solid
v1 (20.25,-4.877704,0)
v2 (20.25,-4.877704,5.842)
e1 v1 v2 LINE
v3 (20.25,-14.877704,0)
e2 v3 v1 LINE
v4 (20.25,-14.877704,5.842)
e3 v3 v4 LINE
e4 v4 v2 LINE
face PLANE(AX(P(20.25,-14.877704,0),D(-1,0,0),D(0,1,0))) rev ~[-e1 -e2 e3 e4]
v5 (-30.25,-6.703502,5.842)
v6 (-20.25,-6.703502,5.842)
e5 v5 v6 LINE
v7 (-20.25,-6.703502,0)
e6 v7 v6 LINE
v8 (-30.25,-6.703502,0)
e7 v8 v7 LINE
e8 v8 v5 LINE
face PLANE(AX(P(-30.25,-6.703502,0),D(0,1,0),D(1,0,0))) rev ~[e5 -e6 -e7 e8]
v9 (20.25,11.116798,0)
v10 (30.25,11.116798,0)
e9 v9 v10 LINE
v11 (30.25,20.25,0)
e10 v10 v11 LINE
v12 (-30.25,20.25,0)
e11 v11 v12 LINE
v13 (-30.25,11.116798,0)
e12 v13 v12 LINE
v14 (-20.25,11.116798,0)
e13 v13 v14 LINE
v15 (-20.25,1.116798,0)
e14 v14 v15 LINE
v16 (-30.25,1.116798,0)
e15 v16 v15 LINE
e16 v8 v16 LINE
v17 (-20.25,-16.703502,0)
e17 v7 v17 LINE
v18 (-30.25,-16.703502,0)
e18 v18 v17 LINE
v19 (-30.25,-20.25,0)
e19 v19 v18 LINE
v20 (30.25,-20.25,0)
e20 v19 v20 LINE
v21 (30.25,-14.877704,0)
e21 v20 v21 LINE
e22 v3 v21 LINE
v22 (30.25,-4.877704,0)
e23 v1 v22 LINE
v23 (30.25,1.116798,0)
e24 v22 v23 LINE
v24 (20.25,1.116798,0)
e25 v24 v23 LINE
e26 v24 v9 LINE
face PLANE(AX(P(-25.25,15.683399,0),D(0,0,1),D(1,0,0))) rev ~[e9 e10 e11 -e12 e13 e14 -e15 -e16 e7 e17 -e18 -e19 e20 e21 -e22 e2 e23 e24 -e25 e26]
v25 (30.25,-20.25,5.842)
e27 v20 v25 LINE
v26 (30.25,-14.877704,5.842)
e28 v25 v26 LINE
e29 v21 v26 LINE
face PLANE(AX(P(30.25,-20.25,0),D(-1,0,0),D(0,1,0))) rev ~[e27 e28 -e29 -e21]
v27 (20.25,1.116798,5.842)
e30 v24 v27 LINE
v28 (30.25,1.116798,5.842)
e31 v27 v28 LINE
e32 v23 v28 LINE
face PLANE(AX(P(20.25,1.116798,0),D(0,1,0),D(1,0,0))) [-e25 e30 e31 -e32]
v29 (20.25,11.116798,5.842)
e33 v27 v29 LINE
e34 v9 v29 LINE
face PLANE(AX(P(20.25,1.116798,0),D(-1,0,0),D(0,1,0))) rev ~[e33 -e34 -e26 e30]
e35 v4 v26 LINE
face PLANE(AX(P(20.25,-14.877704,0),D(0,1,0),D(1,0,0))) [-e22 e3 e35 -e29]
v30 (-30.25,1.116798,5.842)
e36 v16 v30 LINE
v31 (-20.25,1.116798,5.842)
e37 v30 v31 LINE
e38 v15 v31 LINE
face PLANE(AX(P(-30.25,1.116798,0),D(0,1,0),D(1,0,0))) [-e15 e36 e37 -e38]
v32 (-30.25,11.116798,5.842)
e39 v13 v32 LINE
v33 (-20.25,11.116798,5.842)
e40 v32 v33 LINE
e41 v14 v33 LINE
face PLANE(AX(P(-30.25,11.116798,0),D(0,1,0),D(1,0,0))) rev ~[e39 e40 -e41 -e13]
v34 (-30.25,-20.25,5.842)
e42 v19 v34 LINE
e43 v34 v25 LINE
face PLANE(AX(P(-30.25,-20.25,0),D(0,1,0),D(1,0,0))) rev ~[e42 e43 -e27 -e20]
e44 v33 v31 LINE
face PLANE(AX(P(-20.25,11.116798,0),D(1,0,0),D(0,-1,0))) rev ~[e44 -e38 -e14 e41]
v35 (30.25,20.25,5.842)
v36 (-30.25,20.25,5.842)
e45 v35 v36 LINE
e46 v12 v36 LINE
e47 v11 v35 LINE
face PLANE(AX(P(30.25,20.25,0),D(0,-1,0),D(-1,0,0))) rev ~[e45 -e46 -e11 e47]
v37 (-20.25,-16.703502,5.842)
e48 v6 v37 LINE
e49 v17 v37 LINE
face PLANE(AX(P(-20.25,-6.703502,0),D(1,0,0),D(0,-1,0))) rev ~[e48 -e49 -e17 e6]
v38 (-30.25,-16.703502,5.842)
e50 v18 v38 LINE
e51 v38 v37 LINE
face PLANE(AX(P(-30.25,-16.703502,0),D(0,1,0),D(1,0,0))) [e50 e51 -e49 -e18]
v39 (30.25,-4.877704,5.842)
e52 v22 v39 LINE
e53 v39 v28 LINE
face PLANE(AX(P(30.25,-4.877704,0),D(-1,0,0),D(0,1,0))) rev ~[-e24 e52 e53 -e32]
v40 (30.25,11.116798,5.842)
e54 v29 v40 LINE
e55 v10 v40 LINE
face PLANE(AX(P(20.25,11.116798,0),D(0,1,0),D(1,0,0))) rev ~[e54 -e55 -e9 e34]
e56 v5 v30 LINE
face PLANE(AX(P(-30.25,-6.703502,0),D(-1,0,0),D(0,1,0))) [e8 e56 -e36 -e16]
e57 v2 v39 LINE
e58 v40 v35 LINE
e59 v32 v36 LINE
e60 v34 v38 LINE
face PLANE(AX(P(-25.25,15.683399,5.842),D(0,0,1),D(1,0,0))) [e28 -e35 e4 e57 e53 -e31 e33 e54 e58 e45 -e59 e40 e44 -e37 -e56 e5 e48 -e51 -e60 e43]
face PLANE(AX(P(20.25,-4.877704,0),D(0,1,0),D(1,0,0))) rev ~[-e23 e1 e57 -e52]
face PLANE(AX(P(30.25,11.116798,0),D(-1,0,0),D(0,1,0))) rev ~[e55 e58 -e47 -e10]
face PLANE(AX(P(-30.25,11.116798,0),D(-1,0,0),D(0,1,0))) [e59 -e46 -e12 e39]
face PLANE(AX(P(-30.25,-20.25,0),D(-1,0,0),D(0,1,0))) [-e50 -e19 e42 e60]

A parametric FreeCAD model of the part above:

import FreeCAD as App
import Part
import Sketcher

V = App.Vector

doc = App.newDocument("Part")
params = doc.addObject("Spreadsheet::Sheet", "Params")
for row, (alias, value) in enumerate([
    ("sketch1_width", "10 mm"),
    ("sketch1_width2", "60.5 mm"),
    ("pad1_length", "5.842 mm"),
], start=1):
    params.set(f"A{row}", alias)
    params.set(f"B{row}", "=" + value)
    params.setAlias(f"B{row}", alias)

body = doc.addObject("PartDesign::Body", "Body")

# Sketch on XY plane
sketch1 = doc.addObject("Sketcher::SketchObject", "Sketch")
body.addObject(sketch1)
sketch1.AttachmentSupport = (doc.XY_Plane, [""])
sketch1.MapMode = "FlatFace"
sketch1.addGeometry([
    Part.LineSegment(V(-30.25, 20.25, 0), V(-30.25, 11.116798, 0)),  # 0
    Part.LineSegment(V(-30.25, 11.116798, 0), V(-20.25, 11.116798, 0)),  # 1
    Part.LineSegment(V(-20.25, 11.116798, 0), V(-20.25, 1.116798, 0)),  # 2
    Part.LineSegment(V(-20.25, 1.116798, 0), V(-30.25, 1.116798, 0)),  # 3
    Part.LineSegment(V(-30.25, 1.116798, 0), V(-30.25, -6.703502, 0)),  # 4
    Part.LineSegment(V(-30.25, -6.703502, 0), V(-20.25, -6.703502, 0)),  # 5
    Part.LineSegment(V(-20.25, -6.703502, 0), V(-20.25, -16.703502, 0)),  # 6
    Part.LineSegment(V(-20.25, -16.703502, 0), V(-30.25, -16.703502, 0)),  # 7
    Part.LineSegment(V(-30.25, -16.703502, 0), V(-30.25, -20.25, 0)),  # 8
    Part.LineSegment(V(-30.25, -20.25, 0), V(30.25, -20.25, 0)),  # 9
    Part.LineSegment(V(30.25, -20.25, 0), V(30.25, -14.877704, 0)),  # 10
    Part.LineSegment(V(30.25, -14.877704, 0), V(20.25, -14.877704, 0)),  # 11
    Part.LineSegment(V(20.25, -14.877704, 0), V(20.25, -4.877704, 0)),  # 12
    Part.LineSegment(V(20.25, -4.877704, 0), V(30.25, -4.877704, 0)),  # 13
    Part.LineSegment(V(30.25, -4.877704, 0), V(30.25, 1.116798, 0)),  # 14
    Part.LineSegment(V(30.25, 1.116798, 0), V(20.25, 1.116798, 0)),  # 15
    Part.LineSegment(V(20.25, 1.116798, 0), V(20.25, 11.116798, 0)),  # 16
    Part.LineSegment(V(20.25, 11.116798, 0), V(30.25, 11.116798, 0)),  # 17
    Part.LineSegment(V(30.25, 11.116798, 0), V(30.25, 20.25, 0)),  # 18
    Part.LineSegment(V(30.25, 20.25, 0), V(-30.25, 20.25, 0)),  # 19
], False)
sketch1.addConstraint([
    Sketcher.Constraint("Coincident", 0, 2, 1, 1),
    Sketcher.Constraint("Coincident", 1, 2, 2, 1),
    Sketcher.Constraint("Coincident", 2, 2, 3, 1),
    Sketcher.Constraint("Coincident", 3, 2, 4, 1),
    Sketcher.Constraint("Coincident", 4, 2, 5, 1),
    Sketcher.Constraint("Coincident", 5, 2, 6, 1),
    Sketcher.Constraint("Coincident", 6, 2, 7, 1),
    Sketcher.Constraint("Coincident", 7, 2, 8, 1),
    Sketcher.Constraint("Coincident", 8, 2, 9, 1),
    Sketcher.Constraint("Coincident", 9, 2, 10, 1),
    Sketcher.Constraint("Coincident", 10, 2, 11, 1),
    Sketcher.Constraint("Coincident", 11, 2, 12, 1),
    Sketcher.Constraint("Coincident", 12, 2, 13, 1),
    Sketcher.Constraint("Coincident", 13, 2, 14, 1),
    Sketcher.Constraint("Coincident", 14, 2, 15, 1),
    Sketcher.Constraint("Coincident", 15, 2, 16, 1),
    Sketcher.Constraint("Coincident", 16, 2, 17, 1),
    Sketcher.Constraint("Coincident", 17, 2, 18, 1),
    Sketcher.Constraint("Coincident", 18, 2, 19, 1),
    Sketcher.Constraint("Coincident", 19, 2, 0, 1),
    Sketcher.Constraint("Vertical", 0),
    Sketcher.Constraint("Horizontal", 1),
    Sketcher.Constraint("Vertical", 2),
    Sketcher.Constraint("Horizontal", 3),
    Sketcher.Constraint("Vertical", 4),
    Sketcher.Constraint("Horizontal", 5),
    Sketcher.Constraint("Vertical", 6),
    Sketcher.Constraint("Horizontal", 7),
    Sketcher.Constraint("Vertical", 8),
    Sketcher.Constraint("Horizontal", 9),
    Sketcher.Constraint("Vertical", 10),
    Sketcher.Constraint("Horizontal", 11),
    Sketcher.Constraint("Vertical", 12),
    Sketcher.Constraint("Horizontal", 13),
    Sketcher.Constraint("Vertical", 14),
    Sketcher.Constraint("Horizontal", 15),
    Sketcher.Constraint("Vertical", 16),
    Sketcher.Constraint("Horizontal", 17),
    Sketcher.Constraint("Vertical", 18),
    Sketcher.Constraint("Horizontal", 19),
    Sketcher.Constraint("Symmetric", 8, 2, 18, 2, -1, 1),
    Sketcher.Constraint("Symmetric", 3, 2, 14, 2, -2),
    Sketcher.Constraint("Symmetric", 1, 2, 16, 2, -2),
    Sketcher.Constraint("Vertical", 0, 2, 3, 2),
    Sketcher.Constraint("Vertical", 2, 2, 5, 2),
    Sketcher.Constraint("Vertical", 4, 2, 7, 2),
    Sketcher.Constraint("Vertical", 10, 2, 13, 2),
    Sketcher.Constraint("Vertical", 12, 2, 15, 2),
    Sketcher.Constraint("Equal", 17, 2),
    Sketcher.Constraint("Equal", 2, 6),
    Sketcher.Constraint("Equal", 6, 12),
    Sketcher.Constraint("DistanceX", 1, 1, 1, 2, 10.0),
    Sketcher.Constraint("DistanceX", 9, 1, 9, 2, 60.5),
    Sketcher.Constraint("DistanceY", 8, 2, -1, 1, 20.25),
    Sketcher.Constraint("DistanceY", 4, 2, 4, 1, 7.8203),
    Sketcher.Constraint("DistanceY", 14, 1, 14, 2, 5.994502),
    Sketcher.Constraint("DistanceY", 0, 2, 0, 1, 9.133202),
])
sketch1.setExpression("Constraints[51]", "Params.sketch1_width")
sketch1.setExpression("Constraints[52]", "Params.sketch1_width2")
pad1 = doc.addObject("PartDesign::Pad", "Pad")
body.addObject(pad1)
pad1.Profile = sketch1
pad1.setExpression("Length", "Params.pad1_length")

doc.recompute()
